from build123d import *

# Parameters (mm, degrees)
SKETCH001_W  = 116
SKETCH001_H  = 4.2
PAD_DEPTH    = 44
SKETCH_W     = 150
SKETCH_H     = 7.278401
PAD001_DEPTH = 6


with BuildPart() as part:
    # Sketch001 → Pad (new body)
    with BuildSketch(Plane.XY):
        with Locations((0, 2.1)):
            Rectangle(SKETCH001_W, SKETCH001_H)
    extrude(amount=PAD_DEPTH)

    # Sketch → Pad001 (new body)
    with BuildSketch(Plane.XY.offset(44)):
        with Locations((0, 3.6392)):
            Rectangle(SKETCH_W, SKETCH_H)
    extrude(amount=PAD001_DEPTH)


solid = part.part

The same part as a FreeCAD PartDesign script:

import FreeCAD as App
import Part
import Sketcher

doc = App.newDocument("Part")
body = doc.addObject("PartDesign::Body", "Body")

# Sketch on XY plane
sketch1 = body.newObject("Sketcher::SketchObject", "Sketch")
sketch1.AttachmentSupport = (doc.getObject("XY_Plane"), [""])
sketch1.MapMode = "FlatFace"
sketch1.addGeometry([
    Part.LineSegment(App.Vector(-58, 4.2, 0), App.Vector(-58, 0, 0)),
    Part.LineSegment(App.Vector(-58, 0, 0), App.Vector(58, 0, 0)),
    Part.LineSegment(App.Vector(58, 0, 0), App.Vector(58, 4.2, 0)),
    Part.LineSegment(App.Vector(58, 4.2, 0), App.Vector(-58, 4.2, 0)),
], False)
sketch1.addConstraint([
    Sketcher.Constraint("Coincident", 0, 2, 1, 1),
    Sketcher.Constraint("Coincident", 1, 2, 2, 1),
    Sketcher.Constraint("Coincident", 2, 2, 3, 1),
    Sketcher.Constraint("Coincident", 3, 2, 0, 1),
    Sketcher.Constraint("Vertical", 0),
    Sketcher.Constraint("Horizontal", 1),
    Sketcher.Constraint("Vertical", 2),
    Sketcher.Constraint("Horizontal", 3),
    Sketcher.Constraint("Symmetric", 0, 2, 1, 2, -1, 1),
    Sketcher.Constraint("DistanceX", 1, 1, 1, 2, 116.0),
    Sketcher.Constraint("DistanceY", 0, 2, 0, 1, 4.2),
])
pad1 = body.newObject("PartDesign::Pad", "Pad")
pad1.Profile = sketch1
pad1.Length = 44

# Sketch on XY plane
sketch2 = body.newObject("Sketcher::SketchObject", "Sketch001")
sketch2.AttachmentSupport = (doc.getObject("XY_Plane"), [""])
sketch2.MapMode = "FlatFace"
sketch2.AttachmentOffset = App.Placement(App.Vector(0, 0, 44), App.Rotation())
sketch2.addGeometry([
    Part.LineSegment(App.Vector(-75, 7, 0), App.Vector(-75, 0, 0)),
    Part.LineSegment(App.Vector(-75, 0, 0), App.Vector(75, 0, 0)),
    Part.LineSegment(App.Vector(75, 0, 0), App.Vector(75, 7, 0)),
    Part.LineSegment(App.Vector(75, 7, 0), App.Vector(-75, 7, 0)),
], False)
sketch2.addConstraint([
    Sketcher.Constraint("Coincident", 0, 2, 1, 1),
    Sketcher.Constraint("Coincident", 1, 2, 2, 1),
    Sketcher.Constraint("Coincident", 2, 2, 3, 1),
    Sketcher.Constraint("Coincident", 3, 2, 0, 1),
    Sketcher.Constraint("Vertical", 0),
    Sketcher.Constraint("Horizontal", 1),
    Sketcher.Constraint("Vertical", 2),
    Sketcher.Constraint("Horizontal", 3),
    Sketcher.Constraint("Symmetric", 0, 2, 1, 2, -1, 1),
    Sketcher.Constraint("DistanceX", 1, 1, 1, 2, 150.0),
    Sketcher.Constraint("DistanceY", 0, 2, 0, 1, 7.278401),
])
pad2 = body.newObject("PartDesign::Pad", "Pad001")
pad2.Profile = sketch2
pad2.Length = 6

doc.recompute()
